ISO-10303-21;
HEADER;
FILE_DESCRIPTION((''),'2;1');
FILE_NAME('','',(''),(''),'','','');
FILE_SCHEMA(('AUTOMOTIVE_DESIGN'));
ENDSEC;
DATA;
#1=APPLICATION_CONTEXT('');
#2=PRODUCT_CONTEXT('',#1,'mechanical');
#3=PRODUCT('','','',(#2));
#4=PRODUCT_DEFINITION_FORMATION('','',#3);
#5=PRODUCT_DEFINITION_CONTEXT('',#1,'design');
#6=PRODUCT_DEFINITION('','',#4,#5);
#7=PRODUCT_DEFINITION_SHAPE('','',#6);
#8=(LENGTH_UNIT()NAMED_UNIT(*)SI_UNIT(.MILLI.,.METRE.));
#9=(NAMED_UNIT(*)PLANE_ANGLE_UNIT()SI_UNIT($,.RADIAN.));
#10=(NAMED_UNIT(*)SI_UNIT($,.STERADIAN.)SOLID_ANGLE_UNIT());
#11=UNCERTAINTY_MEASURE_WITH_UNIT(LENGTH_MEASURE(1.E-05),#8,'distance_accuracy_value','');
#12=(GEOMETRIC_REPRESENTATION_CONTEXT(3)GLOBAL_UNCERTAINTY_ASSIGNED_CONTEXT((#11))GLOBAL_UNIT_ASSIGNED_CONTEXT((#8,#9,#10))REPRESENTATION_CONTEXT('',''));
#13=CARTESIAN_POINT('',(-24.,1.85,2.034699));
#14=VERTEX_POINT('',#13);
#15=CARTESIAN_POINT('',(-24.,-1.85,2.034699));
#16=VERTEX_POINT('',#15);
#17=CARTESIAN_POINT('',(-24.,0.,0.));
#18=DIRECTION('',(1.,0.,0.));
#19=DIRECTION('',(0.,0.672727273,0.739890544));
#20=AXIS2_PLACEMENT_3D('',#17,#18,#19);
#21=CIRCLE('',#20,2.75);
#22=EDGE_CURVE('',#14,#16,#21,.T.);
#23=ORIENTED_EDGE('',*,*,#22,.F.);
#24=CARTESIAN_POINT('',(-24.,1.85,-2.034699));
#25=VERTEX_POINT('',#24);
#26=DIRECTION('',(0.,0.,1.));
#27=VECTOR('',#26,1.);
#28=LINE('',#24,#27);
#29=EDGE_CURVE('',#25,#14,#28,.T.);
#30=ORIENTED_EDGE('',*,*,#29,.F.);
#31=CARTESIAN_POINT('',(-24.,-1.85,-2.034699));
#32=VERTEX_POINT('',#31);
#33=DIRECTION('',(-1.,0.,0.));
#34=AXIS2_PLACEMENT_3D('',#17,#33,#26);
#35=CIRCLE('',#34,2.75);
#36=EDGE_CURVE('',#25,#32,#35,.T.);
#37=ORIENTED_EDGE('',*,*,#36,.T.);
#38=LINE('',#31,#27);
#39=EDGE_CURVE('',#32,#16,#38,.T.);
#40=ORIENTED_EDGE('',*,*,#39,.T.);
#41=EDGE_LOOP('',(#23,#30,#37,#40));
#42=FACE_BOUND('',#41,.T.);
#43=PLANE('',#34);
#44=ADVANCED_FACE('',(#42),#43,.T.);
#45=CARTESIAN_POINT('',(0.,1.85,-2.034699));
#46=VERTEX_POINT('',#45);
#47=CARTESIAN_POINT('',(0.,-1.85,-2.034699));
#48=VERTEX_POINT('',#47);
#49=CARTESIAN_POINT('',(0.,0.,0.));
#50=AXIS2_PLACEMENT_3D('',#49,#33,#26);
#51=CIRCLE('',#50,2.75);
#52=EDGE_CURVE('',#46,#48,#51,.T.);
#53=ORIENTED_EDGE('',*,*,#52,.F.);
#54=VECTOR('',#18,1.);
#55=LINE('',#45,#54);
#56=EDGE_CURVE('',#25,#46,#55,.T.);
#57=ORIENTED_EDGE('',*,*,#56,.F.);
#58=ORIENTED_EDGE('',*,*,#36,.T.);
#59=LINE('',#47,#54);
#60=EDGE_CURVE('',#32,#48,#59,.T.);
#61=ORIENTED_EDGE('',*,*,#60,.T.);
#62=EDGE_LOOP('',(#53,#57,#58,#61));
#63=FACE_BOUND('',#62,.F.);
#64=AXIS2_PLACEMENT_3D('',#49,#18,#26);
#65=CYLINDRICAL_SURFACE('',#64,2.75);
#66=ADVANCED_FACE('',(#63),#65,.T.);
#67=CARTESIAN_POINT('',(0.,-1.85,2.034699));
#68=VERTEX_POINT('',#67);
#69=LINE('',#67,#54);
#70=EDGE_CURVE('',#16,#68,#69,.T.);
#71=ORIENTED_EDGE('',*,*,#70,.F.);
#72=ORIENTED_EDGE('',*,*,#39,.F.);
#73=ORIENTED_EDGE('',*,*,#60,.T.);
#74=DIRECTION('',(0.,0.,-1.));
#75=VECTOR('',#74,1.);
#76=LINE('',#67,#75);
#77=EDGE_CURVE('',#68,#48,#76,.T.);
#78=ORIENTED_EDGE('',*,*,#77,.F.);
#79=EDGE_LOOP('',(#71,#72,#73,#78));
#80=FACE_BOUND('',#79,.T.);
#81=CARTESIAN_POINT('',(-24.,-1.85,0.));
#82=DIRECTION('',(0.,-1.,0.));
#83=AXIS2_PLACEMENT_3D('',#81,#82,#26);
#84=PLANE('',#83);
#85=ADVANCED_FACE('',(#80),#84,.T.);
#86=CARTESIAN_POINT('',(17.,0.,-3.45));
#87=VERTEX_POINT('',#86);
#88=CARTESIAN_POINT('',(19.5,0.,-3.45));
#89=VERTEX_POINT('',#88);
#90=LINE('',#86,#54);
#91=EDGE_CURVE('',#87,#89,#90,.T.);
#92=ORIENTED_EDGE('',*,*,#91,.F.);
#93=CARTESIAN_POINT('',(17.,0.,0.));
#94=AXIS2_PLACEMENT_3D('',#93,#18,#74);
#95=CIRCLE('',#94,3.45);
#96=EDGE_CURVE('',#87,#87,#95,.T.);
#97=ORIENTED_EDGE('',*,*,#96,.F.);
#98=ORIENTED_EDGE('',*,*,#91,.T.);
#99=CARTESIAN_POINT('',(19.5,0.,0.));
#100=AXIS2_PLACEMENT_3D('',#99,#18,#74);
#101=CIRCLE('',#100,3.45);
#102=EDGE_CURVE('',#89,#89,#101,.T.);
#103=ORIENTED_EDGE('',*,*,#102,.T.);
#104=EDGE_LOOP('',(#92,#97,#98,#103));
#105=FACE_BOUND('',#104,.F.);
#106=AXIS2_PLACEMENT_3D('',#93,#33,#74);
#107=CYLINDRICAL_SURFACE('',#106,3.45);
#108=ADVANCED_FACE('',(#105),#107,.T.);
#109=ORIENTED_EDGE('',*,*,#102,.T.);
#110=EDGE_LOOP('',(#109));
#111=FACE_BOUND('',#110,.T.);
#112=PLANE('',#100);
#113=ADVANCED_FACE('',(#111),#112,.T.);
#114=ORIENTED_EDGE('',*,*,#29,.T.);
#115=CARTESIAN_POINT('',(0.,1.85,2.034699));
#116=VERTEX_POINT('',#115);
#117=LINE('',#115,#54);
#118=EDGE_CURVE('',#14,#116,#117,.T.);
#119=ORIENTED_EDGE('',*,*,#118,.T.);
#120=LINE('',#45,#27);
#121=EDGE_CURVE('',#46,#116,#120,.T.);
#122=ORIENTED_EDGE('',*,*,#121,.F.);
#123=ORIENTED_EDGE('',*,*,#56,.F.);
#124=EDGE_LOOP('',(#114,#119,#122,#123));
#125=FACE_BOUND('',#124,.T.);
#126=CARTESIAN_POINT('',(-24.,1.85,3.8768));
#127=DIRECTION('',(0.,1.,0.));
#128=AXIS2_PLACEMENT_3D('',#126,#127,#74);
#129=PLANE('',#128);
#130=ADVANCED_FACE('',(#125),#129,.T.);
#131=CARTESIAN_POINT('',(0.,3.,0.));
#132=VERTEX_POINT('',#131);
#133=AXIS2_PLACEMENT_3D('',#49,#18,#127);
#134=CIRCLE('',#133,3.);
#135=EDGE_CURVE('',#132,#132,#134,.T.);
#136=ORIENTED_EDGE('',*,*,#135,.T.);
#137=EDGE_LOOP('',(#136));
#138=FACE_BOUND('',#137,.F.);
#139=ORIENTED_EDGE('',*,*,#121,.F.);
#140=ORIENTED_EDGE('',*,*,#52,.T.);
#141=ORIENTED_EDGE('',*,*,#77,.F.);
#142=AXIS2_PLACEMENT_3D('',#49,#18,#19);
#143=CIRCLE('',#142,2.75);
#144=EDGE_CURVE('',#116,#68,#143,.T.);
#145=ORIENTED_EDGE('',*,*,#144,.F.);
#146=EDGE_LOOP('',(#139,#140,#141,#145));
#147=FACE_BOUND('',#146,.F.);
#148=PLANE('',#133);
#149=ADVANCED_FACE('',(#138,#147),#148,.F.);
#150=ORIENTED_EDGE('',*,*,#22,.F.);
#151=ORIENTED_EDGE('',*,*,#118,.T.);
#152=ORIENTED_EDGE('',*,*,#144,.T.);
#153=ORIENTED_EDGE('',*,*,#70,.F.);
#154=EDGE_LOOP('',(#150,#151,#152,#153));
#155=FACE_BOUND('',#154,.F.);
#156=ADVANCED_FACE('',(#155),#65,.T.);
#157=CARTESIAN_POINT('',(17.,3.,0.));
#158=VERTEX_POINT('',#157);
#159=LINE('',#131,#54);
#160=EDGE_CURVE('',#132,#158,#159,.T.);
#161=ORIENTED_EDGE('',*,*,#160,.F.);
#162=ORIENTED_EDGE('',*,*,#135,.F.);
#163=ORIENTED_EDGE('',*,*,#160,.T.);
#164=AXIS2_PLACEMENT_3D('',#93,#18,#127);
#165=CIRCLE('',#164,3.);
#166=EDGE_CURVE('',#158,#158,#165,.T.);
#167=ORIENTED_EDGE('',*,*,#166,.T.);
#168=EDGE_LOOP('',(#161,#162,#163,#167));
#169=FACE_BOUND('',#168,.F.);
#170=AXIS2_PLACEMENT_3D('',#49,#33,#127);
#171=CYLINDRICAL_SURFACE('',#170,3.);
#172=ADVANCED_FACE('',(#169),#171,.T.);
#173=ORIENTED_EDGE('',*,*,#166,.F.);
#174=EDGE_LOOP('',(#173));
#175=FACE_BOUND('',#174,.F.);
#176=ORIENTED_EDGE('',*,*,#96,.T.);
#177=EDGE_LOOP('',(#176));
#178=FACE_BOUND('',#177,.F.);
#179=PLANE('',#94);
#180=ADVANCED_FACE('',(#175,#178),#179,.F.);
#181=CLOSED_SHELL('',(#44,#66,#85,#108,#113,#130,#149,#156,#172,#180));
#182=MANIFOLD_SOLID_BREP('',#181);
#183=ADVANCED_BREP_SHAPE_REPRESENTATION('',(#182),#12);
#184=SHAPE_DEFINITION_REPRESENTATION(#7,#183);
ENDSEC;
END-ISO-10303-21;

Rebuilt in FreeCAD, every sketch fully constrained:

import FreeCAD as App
import Part
import Sketcher
from FreeCAD import Vector

doc = App.newDocument("Part")
body = doc.addObject("PartDesign::Body", "Body")

# Sketch on YZ plane
sketch1 = body.newObject("Sketcher::SketchObject", "Sketch")
sketch1.AttachmentSupport = (doc.getObject("YZ_Plane"), [""])
sketch1.MapMode = "FlatFace"
sketch1.addGeometry(Part.Circle(Vector(0, 0, 0), Vector(0, 0, 1), 3), False)
sketch1.addConstraint([
    Sketcher.Constraint("Coincident", 0, 3, -1, 1),
    Sketcher.Constraint("Diameter", 0, 6.0),
])
pad1 = body.newObject("PartDesign::Pad", "Pad")
pad1.Profile = sketch1
pad1.Length = 17

# Sketch on YZ plane
sketch2 = body.newObject("Sketcher::SketchObject", "Sketch001")
sketch2.AttachmentSupport = (doc.getObject("YZ_Plane"), [""])
sketch2.MapMode = "FlatFace"
sketch2.AttachmentOffset = App.Placement(Vector(0, 0, 17), App.Rotation())
sketch2.addGeometry(Part.Circle(Vector(0, 0, 0), Vector(0, 0, 1), 3.5), False)
sketch2.addConstraint([
    Sketcher.Constraint("Coincident", 0, 3, -1, 1),
    Sketcher.Constraint("Diameter", 0, 6.9),
])
pad2 = body.newObject("PartDesign::Pad", "Pad001")
pad2.Profile = sketch2
pad2.Length = 2.5

# Sketch on YZ plane
sketch3 = body.newObject("Sketcher::SketchObject", "Sketch002")
sketch3.AttachmentSupport = (doc.getObject("YZ_Plane"), [""])
sketch3.MapMode = "FlatFace"
sketch3.addGeometry(Part.Circle(Vector(0, 0, 0), Vector(0, 0, 1), 2.8), False)
sketch3.addConstraint([
    Sketcher.Constraint("Coincident", 0, 3, -1, 1),
    Sketcher.Constraint("Diameter", 0, 5.5),
])
pad3 = body.newObject("PartDesign::Pad", "Pad002")
pad3.Profile = sketch3
pad3.Length = 24
pad3.Reversed = True

# Sketch on YZ plane
sketch4 = body.newObject("Sketcher::SketchObject", "Sketch003")
sketch4.AttachmentSupport = (doc.getObject("YZ_Plane"), [""])
sketch4.MapMode = "FlatFace"
sketch4.AttachmentOffset = App.Placement(Vector(0, 0, -24), App.Rotation())
sketch4.addGeometry([
    Part.LineSegment(Vector(8, -7.1, 0), Vector(-8, -7.1, 0)),  # 0
    Part.LineSegment(Vector(-8, -7.1, 0), Vector(-8, 8.1, 0)),  # 1
    Part.LineSegment(Vector(-8, 8.1, 0), Vector(8, 8.1, 0)),  # 2
    Part.LineSegment(Vector(8, 8.1, 0), Vector(8, -7.1, 0)),  # 3
    Part.LineSegment(Vector(-1.9, 3.9, 0), Vector(-1.9, -3.8, 0)),  # 4
    Part.LineSegment(Vector(-1.9, -3.8, 0), Vector(1.9, -3.8, 0)),  # 5
    Part.LineSegment(Vector(1.9, -3.8, 0), Vector(1.9, 3.9, 0)),  # 6
    Part.LineSegment(Vector(1.9, 3.9, 0), Vector(-1.9, 3.9, 0)),  # 7
], False)
sketch4.addConstraint([
    Sketcher.Constraint("Coincident", 0, 2, 1, 1),
    Sketcher.Constraint("Coincident", 1, 2, 2, 1),
    Sketcher.Constraint("Coincident", 2, 2, 3, 1),
    Sketcher.Constraint("Coincident", 3, 2, 0, 1),
    Sketcher.Constraint("Coincident", 4, 2, 5, 1),
    Sketcher.Constraint("Coincident", 5, 2, 6, 1),
    Sketcher.Constraint("Coincident", 6, 2, 7, 1),
    Sketcher.Constraint("Coincident", 7, 2, 4, 1),
    Sketcher.Constraint("Horizontal", 0),
    Sketcher.Constraint("Vertical", 1),
    Sketcher.Constraint("Horizontal", 2),
    Sketcher.Constraint("Vertical", 3),
    Sketcher.Constraint("Vertical", 4),
    Sketcher.Constraint("Horizontal", 5),
    Sketcher.Constraint("Vertical", 6),
    Sketcher.Constraint("Horizontal", 7),
    Sketcher.Constraint("DistanceX", 4, 2, -1, 1, 1.85),
    Sketcher.Constraint("DistanceX", -1, 1, 5, 2, 1.85),
    Sketcher.Constraint("DistanceY", 4, 2, 4, 1, 7.627),
    Sketcher.Constraint("DistanceY", 4, 2, -1, 1, 3.75),
    Sketcher.Constraint("DistanceX", 0, 2, 0, 1, 16.0496),
    Sketcher.Constraint("DistanceY", 1, 1, 1, 2, 15.1648),
    Sketcher.Constraint("DistanceY", 3, 2, 6, 2, 10.975),
    Sketcher.Constraint("DistanceX", 0, 2, -1, 1, 8.0342),
])
pocket1 = body.newObject("PartDesign::Pocket", "Pocket")
pocket1.Profile = sketch4
pocket1.Length = 24
pocket1.Reversed = True

doc.recompute()
